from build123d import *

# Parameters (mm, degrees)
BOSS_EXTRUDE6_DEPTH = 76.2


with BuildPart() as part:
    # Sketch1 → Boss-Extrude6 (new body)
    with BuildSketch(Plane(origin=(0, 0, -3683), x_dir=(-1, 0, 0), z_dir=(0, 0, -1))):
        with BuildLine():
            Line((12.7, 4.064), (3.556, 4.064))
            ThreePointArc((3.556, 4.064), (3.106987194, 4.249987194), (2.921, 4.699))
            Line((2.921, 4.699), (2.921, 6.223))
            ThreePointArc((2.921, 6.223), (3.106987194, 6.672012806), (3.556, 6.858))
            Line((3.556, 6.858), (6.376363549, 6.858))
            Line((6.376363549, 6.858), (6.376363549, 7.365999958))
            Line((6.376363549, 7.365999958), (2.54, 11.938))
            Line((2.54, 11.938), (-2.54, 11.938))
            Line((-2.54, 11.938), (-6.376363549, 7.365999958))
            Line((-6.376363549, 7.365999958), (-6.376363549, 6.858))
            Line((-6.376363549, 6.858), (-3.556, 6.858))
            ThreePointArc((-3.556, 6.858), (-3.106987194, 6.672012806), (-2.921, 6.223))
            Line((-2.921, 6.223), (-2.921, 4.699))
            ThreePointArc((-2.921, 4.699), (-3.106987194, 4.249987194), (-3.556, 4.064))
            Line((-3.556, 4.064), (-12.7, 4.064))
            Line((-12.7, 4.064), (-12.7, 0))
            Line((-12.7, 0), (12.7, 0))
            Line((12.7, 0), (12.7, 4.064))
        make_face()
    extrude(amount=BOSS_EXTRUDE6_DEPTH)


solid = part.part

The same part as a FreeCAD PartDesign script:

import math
import FreeCAD as App
import Part
import Sketcher
from FreeCAD import Vector
Q = App.Units.Quantity

doc = App.newDocument("Part")
body = doc.addObject("PartDesign::Body", "Body")

# Sketch on XY plane
sketch1 = body.newObject("Sketcher::SketchObject", "Sketch")
sketch1.AttachmentSupport = (doc.getObject("XY_Plane"), [""])
sketch1.MapMode = "FlatFace"
sketch1.AttachmentOffset = App.Placement(Vector(0, 0, -145 * 25.4), App.Rotation())
sketch1.addGeometry(Part.LineSegment(Vector(-12.7, 4.064, 0), Vector(-3.556, 4.064, 0)), False)
sketch1.addGeometry(Part.ArcOfCircle(Part.Circle(Vector(-3.556, 4.699, 0), Vector(0, 0, 1), 0.635), math.radians(-90), math.radians(0)), False)
sketch1.addGeometry(Part.LineSegment(Vector(-2.921, 4.699, 0), Vector(-2.921, 6.223, 0)), False)
sketch1.addGeometry(Part.ArcOfCircle(Part.Circle(Vector(-3.556, 6.223, 0), Vector(0, 0, 1), 0.635), math.radians(0), math.radians(90)), False)
sketch1.addGeometry(Part.LineSegment(Vector(-3.556, 6.858, 0), Vector(-6.376364, 6.858, 0)), False)
sketch1.addGeometry(Part.LineSegment(Vector(-6.376364, 6.858, 0), Vector(-6.376364, 7.366, 0)), False)
sketch1.addGeometry(Part.LineSegment(Vector(-6.376364, 7.366, 0), Vector(-2.54, 11.938, 0)), False)
sketch1.addGeometry(Part.LineSegment(Vector(-2.54, 11.938, 0), Vector(2.54, 11.938, 0)), False)
sketch1.addGeometry(Part.LineSegment(Vector(2.54, 11.938, 0), Vector(6.376364, 7.366, 0)), False)
sketch1.addGeometry(Part.LineSegment(Vector(6.376364, 7.366, 0), Vector(6.376364, 6.858, 0)), False)
sketch1.addGeometry(Part.LineSegment(Vector(6.376364, 6.858, 0), Vector(3.556, 6.858, 0)), False)
sketch1.addGeometry(Part.ArcOfCircle(Part.Circle(Vector(3.556, 6.223, 0), Vector(0, 0, 1), 0.635), math.radians(90), math.radians(180)), False)
sketch1.addGeometry(Part.LineSegment(Vector(2.921, 6.223, 0), Vector(2.921, 4.699, 0)), False)
sketch1.addGeometry(Part.ArcOfCircle(Part.Circle(Vector(3.556, 4.699, 0), Vector(0, 0, 1), 0.635), math.radians(180), math.radians(270)), False)
sketch1.addGeometry(Part.LineSegment(Vector(3.556, 4.064, 0), Vector(12.7, 4.064, 0)), False)
sketch1.addGeometry(Part.LineSegment(Vector(12.7, 4.064, 0), Vector(12.7, 0, 0)), False)
sketch1.addGeometry(Part.LineSegment(Vector(12.7, 0, 0), Vector(-12.7, 0, 0)), False)
sketch1.addGeometry(Part.LineSegment(Vector(-12.7, 0, 0), Vector(-12.7, 4.064, 0)), False)
sketch1.addConstraint(Sketcher.Constraint("Tangent", 0, 2, 1, 1))
sketch1.addConstraint(Sketcher.Constraint("Tangent", 1, 2, 2, 1))
sketch1.addConstraint(Sketcher.Constraint("Tangent", 2, 2, 3, 1))
sketch1.addConstraint(Sketcher.Constraint("Tangent", 3, 2, 4, 1))
sketch1.addConstraint(Sketcher.Constraint("Coincident", 4, 2, 5, 1))
sketch1.addConstraint(Sketcher.Constraint("Coincident", 5, 2, 6, 1))
sketch1.addConstraint(Sketcher.Constraint("Coincident", 6, 2, 7, 1))
sketch1.addConstraint(Sketcher.Constraint("Coincident", 7, 2, 8, 1))
sketch1.addConstraint(Sketcher.Constraint("Coincident", 8, 2, 9, 1))
sketch1.addConstraint(Sketcher.Constraint("Coincident", 9, 2, 10, 1))
sketch1.addConstraint(Sketcher.Constraint("Tangent", 10, 2, 11, 1))
sketch1.addConstraint(Sketcher.Constraint("Tangent", 11, 2, 12, 1))
sketch1.addConstraint(Sketcher.Constraint("Tangent", 12, 2, 13, 1))
sketch1.addConstraint(Sketcher.Constraint("Tangent", 13, 2, 14, 1))
sketch1.addConstraint(Sketcher.Constraint("Coincident", 14, 2, 15, 1))
sketch1.addConstraint(Sketcher.Constraint("Coincident", 15, 2, 16, 1))
sketch1.addConstraint(Sketcher.Constraint("Coincident", 16, 2, 17, 1))
sketch1.addConstraint(Sketcher.Constraint("Coincident", 17, 2, 0, 1))
sketch1.addConstraint(Sketcher.Constraint("Horizontal", 0))
sketch1.addConstraint(Sketcher.Constraint("Vertical", 2))
sketch1.addConstraint(Sketcher.Constraint("Horizontal", 4))
sketch1.addConstraint(Sketcher.Constraint("Vertical", 5))
sketch1.addConstraint(Sketcher.Constraint("Horizontal", 7))
sketch1.addConstraint(Sketcher.Constraint("Vertical", 9))
sketch1.addConstraint(Sketcher.Constraint("Horizontal", 10))
sketch1.addConstraint(Sketcher.Constraint("Vertical", 12))
sketch1.addConstraint(Sketcher.Constraint("Horizontal", 14))
sketch1.addConstraint(Sketcher.Constraint("Vertical", 15))
sketch1.addConstraint(Sketcher.Constraint("Horizontal", 16))
sketch1.addConstraint(Sketcher.Constraint("Vertical", 17))
sketch1.addConstraint(Sketcher.Constraint("Equal", 1, 3))
sketch1.addConstraint(Sketcher.Constraint("Equal", 3, 11))
sketch1.addConstraint(Sketcher.Constraint("Equal", 11, 13))
sketch1.addConstraint(Sketcher.Constraint("Symmetric", 15, 2, 16, 2, -1, 1))
sketch1.addConstraint(Sketcher.Constraint("Symmetric", 3, 3, 11, 3, -2))
sketch1.addConstraint(Sketcher.Constraint("Symmetric", 5, 2, 8, 2, -2))
sketch1.addConstraint(Sketcher.Constraint("Horizontal", 1, 3, 13, 3))
sketch1.addConstraint(Sketcher.Constraint("Equal", 6, 8))
sketch1.addConstraint(Sketcher.Constraint("DistanceX", 16, 2, 16, 1, Q("1 in")))
sketch1.addConstraint(Sketcher.Constraint("DistanceX", 7, 1, 7, 2, Q("0.2 in")))
sketch1.addConstraint(Sketcher.Constraint("Angle", 6, Q("50 deg")))
sketch1.addConstraint(Sketcher.Constraint("Radius", 1, Q("0.025 in")))
sketch1.addConstraint(Sketcher.Constraint("DistanceX", 0, 1, 0, 2, Q("0.36 in")))
sketch1.addConstraint(Sketcher.Constraint("DistanceY", 2, 1, 2, 2, Q("0.06 in")))
sketch1.addConstraint(Sketcher.Constraint("DistanceY", 5, 1, 5, 2, Q("0.02 in")))
sketch1.addConstraint(Sketcher.Constraint("DistanceY", 15, 2, 15, 1, Q("0.16 in")))
sketch1.addConstraint(Sketcher.Constraint("DistanceY", 3, 2, 6, 2, Q("0.2 in")))
pad1 = body.newObject("PartDesign::Pad", "Pad")
pad1.Profile = sketch1
pad1.Length = Q("3 in")
pad1.Reversed = True

doc.recompute()
